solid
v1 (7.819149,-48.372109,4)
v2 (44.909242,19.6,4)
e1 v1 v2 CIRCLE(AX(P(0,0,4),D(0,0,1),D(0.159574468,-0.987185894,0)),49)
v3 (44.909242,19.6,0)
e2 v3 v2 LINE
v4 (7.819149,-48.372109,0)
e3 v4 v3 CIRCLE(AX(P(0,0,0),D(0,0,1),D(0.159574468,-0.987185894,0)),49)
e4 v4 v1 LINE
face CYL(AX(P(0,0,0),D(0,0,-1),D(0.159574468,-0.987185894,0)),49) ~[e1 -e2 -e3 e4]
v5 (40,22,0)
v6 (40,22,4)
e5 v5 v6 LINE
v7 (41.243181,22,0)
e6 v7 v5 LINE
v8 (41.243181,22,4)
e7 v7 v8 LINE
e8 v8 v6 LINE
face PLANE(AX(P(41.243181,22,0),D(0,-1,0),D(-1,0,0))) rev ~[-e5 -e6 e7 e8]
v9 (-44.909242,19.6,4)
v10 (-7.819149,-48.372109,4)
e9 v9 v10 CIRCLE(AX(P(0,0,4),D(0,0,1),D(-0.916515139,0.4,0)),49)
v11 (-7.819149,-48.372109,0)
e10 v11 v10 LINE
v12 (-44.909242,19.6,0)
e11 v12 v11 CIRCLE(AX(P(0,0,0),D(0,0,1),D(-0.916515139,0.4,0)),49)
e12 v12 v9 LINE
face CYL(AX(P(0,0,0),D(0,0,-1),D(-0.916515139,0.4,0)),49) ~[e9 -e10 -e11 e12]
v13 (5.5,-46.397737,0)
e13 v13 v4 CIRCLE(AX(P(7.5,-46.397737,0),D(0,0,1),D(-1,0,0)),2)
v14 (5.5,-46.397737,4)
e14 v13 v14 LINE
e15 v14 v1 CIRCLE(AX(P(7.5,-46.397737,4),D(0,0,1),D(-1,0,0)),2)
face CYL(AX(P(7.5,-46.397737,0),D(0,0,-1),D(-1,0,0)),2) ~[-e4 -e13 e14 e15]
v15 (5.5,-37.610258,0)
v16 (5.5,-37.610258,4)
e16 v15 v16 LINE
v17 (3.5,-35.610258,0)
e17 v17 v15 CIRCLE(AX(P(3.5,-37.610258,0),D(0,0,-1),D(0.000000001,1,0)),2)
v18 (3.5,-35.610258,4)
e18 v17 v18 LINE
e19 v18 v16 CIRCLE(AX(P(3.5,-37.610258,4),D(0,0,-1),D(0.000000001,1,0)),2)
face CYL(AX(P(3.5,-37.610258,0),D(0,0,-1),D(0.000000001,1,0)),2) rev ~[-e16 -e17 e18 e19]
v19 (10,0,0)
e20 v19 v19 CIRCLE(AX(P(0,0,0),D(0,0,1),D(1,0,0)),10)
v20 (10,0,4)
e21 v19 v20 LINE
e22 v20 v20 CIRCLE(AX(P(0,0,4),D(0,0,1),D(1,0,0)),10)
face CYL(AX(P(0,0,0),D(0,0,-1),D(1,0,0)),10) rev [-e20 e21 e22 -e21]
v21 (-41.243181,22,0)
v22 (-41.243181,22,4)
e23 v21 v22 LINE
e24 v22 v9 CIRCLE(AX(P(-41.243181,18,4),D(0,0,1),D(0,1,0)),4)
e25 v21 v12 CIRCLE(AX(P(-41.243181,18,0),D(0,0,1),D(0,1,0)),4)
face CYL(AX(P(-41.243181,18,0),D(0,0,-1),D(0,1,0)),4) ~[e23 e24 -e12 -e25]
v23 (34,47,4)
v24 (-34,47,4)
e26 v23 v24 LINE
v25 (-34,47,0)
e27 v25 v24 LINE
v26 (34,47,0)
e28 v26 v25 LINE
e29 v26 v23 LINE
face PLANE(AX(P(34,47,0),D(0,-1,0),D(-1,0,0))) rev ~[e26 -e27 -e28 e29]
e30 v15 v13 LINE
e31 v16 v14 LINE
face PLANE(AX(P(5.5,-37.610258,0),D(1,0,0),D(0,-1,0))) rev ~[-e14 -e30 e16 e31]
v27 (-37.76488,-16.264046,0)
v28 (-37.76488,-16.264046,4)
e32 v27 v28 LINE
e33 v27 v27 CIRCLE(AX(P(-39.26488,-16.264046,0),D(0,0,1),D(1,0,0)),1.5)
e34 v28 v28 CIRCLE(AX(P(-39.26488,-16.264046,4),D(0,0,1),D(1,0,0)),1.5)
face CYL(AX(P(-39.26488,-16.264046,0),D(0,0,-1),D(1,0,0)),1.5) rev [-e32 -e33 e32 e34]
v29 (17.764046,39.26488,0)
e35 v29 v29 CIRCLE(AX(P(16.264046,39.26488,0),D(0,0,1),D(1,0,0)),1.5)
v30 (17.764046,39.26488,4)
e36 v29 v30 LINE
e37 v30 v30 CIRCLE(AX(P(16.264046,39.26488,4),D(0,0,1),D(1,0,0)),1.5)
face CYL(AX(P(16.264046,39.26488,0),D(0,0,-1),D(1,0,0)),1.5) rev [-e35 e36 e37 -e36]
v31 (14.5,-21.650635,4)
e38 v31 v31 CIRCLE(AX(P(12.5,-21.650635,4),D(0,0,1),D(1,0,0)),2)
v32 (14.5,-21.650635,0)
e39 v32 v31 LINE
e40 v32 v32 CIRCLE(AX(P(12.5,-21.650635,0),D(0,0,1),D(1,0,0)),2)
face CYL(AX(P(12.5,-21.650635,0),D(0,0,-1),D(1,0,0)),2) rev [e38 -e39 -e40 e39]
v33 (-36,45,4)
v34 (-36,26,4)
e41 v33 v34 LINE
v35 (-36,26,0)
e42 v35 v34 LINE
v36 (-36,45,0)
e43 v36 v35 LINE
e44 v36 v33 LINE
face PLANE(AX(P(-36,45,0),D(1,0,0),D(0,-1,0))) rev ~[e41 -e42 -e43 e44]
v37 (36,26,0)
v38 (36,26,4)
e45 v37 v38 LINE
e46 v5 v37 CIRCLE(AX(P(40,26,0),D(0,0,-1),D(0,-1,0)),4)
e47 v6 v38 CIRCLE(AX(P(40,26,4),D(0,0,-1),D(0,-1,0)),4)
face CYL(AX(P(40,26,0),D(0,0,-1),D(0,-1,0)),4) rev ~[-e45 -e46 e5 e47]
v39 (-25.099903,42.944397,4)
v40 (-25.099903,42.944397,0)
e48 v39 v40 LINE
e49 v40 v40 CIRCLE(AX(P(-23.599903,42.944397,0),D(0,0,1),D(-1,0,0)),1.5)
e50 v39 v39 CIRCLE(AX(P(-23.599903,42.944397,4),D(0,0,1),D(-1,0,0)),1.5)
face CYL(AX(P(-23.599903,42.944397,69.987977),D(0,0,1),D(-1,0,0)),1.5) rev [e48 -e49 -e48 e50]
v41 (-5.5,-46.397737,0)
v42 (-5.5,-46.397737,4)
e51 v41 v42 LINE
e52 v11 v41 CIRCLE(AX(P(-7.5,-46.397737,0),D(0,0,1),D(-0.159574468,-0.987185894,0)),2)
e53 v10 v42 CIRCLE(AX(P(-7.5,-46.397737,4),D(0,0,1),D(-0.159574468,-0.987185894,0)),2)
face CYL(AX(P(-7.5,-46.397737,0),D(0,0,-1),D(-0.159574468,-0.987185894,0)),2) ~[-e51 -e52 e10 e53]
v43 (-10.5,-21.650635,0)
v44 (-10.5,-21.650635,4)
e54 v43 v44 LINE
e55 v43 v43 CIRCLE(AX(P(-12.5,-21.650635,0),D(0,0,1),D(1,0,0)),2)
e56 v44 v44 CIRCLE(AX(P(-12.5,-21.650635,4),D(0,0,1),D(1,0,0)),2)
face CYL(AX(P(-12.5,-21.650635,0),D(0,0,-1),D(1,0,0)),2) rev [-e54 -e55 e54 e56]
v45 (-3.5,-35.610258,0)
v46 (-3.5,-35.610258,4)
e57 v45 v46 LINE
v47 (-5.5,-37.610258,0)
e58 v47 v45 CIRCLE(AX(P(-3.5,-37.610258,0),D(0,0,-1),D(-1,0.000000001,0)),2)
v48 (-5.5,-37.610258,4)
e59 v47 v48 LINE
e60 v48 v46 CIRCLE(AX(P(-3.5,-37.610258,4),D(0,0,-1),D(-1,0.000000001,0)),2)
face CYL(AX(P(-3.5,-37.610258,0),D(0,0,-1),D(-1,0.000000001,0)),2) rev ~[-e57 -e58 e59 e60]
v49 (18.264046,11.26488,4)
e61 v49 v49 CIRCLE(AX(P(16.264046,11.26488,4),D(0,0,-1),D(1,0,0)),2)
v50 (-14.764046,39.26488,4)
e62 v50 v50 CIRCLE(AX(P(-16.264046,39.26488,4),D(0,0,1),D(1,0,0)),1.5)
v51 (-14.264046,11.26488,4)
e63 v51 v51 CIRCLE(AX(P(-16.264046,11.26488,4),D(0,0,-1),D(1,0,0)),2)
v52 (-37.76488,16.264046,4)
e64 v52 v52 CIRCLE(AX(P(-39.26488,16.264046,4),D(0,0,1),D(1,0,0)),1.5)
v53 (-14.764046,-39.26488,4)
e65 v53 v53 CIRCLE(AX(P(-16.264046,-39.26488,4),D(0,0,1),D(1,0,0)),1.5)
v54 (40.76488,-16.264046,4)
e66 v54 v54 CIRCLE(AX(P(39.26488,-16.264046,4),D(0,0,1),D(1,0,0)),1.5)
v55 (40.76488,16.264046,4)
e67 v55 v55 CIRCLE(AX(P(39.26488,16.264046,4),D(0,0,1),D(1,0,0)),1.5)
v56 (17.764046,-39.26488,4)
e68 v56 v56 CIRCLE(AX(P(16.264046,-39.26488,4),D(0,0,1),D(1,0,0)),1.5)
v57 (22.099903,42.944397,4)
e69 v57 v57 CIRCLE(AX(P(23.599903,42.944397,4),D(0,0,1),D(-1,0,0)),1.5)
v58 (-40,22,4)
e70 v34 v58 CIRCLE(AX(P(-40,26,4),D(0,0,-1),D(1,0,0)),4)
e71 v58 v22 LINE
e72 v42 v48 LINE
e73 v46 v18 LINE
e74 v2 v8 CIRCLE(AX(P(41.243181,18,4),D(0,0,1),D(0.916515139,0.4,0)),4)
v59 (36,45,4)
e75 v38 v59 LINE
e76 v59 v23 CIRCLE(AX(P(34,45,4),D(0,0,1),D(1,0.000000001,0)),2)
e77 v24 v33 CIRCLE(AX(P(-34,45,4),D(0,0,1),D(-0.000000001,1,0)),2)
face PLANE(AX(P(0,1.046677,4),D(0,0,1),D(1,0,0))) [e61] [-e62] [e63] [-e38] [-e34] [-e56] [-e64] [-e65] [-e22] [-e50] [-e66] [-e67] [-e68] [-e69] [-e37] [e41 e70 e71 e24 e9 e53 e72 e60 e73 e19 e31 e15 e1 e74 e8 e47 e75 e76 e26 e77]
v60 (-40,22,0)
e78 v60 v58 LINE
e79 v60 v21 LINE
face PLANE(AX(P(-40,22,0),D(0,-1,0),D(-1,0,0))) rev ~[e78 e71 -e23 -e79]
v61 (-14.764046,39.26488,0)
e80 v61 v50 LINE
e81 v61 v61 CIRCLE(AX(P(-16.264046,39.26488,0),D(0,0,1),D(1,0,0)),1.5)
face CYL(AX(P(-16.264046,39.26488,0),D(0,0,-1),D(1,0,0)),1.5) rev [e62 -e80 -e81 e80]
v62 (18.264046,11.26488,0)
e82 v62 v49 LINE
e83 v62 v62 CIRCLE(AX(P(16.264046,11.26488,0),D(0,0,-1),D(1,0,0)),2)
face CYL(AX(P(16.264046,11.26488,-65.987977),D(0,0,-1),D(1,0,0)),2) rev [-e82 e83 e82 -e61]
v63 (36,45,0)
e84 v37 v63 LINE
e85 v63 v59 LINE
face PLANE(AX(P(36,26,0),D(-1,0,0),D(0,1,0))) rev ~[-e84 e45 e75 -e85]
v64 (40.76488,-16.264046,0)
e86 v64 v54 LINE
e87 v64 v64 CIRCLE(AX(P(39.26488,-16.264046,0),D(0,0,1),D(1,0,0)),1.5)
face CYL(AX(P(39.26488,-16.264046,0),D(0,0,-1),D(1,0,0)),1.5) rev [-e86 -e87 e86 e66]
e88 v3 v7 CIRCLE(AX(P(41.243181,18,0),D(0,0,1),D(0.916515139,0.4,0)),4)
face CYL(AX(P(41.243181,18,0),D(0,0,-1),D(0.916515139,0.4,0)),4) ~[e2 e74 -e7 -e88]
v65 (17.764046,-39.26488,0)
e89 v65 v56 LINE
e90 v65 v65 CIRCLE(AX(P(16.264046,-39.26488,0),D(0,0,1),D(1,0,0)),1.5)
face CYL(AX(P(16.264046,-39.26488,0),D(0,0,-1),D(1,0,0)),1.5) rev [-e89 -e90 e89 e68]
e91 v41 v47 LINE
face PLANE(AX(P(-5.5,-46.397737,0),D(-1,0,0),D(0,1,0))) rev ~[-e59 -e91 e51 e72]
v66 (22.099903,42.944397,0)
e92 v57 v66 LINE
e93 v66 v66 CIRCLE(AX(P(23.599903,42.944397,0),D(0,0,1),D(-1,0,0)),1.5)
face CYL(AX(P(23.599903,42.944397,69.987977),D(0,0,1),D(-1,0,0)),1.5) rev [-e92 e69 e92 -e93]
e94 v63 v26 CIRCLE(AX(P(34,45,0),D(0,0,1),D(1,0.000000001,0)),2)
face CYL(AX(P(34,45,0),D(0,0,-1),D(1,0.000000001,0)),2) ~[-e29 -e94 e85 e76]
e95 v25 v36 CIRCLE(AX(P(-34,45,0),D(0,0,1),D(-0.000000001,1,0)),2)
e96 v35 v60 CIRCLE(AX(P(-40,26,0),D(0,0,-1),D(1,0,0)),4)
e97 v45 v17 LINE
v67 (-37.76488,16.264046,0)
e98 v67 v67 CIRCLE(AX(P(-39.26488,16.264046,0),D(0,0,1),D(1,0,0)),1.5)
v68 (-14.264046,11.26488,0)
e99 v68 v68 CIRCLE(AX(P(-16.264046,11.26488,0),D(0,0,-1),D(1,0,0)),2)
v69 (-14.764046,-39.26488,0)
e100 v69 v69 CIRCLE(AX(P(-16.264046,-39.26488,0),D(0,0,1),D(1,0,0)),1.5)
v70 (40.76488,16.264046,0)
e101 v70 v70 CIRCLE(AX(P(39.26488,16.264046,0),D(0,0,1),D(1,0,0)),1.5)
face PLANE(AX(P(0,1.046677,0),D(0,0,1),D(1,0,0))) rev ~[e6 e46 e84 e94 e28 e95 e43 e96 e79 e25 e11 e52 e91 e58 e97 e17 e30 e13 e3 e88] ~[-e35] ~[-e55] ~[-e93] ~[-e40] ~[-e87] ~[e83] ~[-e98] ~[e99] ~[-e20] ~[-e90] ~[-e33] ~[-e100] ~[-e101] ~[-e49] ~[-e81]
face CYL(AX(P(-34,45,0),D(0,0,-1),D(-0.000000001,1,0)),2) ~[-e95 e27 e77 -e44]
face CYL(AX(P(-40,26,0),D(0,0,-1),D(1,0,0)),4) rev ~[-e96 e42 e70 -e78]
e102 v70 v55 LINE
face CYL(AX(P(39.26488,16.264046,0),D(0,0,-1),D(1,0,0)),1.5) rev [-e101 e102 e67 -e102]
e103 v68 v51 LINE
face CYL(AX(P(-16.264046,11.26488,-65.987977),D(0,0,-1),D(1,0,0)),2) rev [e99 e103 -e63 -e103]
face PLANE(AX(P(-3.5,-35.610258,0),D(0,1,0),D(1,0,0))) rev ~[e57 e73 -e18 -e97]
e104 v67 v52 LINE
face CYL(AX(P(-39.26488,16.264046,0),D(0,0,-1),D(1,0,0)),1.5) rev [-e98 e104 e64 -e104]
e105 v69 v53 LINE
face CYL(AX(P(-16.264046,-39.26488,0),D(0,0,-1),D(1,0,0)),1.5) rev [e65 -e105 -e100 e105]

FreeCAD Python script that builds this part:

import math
import FreeCAD as App
import Part
import Sketcher

V = App.Vector

doc = App.newDocument("Part")
params = doc.addObject("Spreadsheet::Sheet", "Params")
for row, (alias, value) in enumerate([
    ("sketch1_diameter", "3 mm"),
    ("sketch1_diameter2", "4 mm"),
    ("sketch1_diameter3", "20 mm"),
    ("sketch1_radius", "49 mm"),
    ("sketch1_radius2", "4 mm"),
    ("pad1_length", "4 mm"),
    ("sketch2_diameter", "4 mm"),
    ("sketch3_diameter", "3 mm"),
    ("sketch4_diameter", "3 mm"),
], start=1):
    params.set(f"A{row}", alias)
    params.set(f"B{row}", "=" + value)
    params.setAlias(f"B{row}", alias)

body = doc.addObject("PartDesign::Body", "Body")

# Sketch on XY plane
sketch1 = body.newObject("Sketcher::SketchObject", "Sketch")
sketch1.AttachmentSupport = (doc.getObject("XY_Plane"), [""])
sketch1.MapMode = "FlatFace"
sketch1.addGeometry(Part.LineSegment(V(-5.5, -46.4, 0), V(-5.5, -37.6, 0)), False)
sketch1.addGeometry(Part.ArcOfCircle(Part.Circle(V(-3.5, -37.6, 0), V(0, 0, 1), 2), math.radians(90), math.radians(180)), False)
sketch1.addGeometry(Part.LineSegment(V(-3.5, -35.6, 0), V(3.5, -35.6, 0)), False)
sketch1.addGeometry(Part.ArcOfCircle(Part.Circle(V(3.5, -37.6, 0), V(0, 0, 1), 2), math.radians(0), math.radians(90)), False)
sketch1.addGeometry(Part.LineSegment(V(5.5, -37.6, 0), V(5.5, -46.4, 0)), False)
sketch1.addGeometry(Part.ArcOfCircle(Part.Circle(V(7.5, -46.4, 0), V(0, 0, 1), 2), math.radians(-180), math.radians(-81)), False)
sketch1.addGeometry(Part.ArcOfCircle(Part.Circle(V(0, 0, 0), V(0, 0, 1), 49), math.radians(-81), math.radians(24)), False)
sketch1.addGeometry(Part.ArcOfCircle(Part.Circle(V(41.2, 18, 0), V(0, 0, 1), 4), math.radians(24), math.radians(90)), False)
sketch1.addGeometry(Part.LineSegment(V(41.2, 22, 0), V(40, 22, 0)), False)
sketch1.addGeometry(Part.ArcOfCircle(Part.Circle(V(40, 26, 0), V(0, 0, 1), 4), math.radians(180), math.radians(270)), False)
sketch1.addGeometry(Part.LineSegment(V(36, 26, 0), V(36, 45, 0)), False)
sketch1.addGeometry(Part.ArcOfCircle(Part.Circle(V(34, 45, 0), V(0, 0, 1), 2), math.radians(0), math.radians(90)), False)
sketch1.addGeometry(Part.LineSegment(V(34, 47, 0), V(-34, 47, 0)), False)
sketch1.addGeometry(Part.ArcOfCircle(Part.Circle(V(-34, 45, 0), V(0, 0, 1), 2), math.radians(90), math.radians(180)), False)
sketch1.addGeometry(Part.LineSegment(V(-36, 45, 0), V(-36, 26, 0)), False)
sketch1.addGeometry(Part.ArcOfCircle(Part.Circle(V(-40, 26, 0), V(0, 0, 1), 4), math.radians(-90), math.radians(0)), False)
sketch1.addGeometry(Part.LineSegment(V(-40, 22, 0), V(-41.2, 22, 0)), False)
sketch1.addGeometry(Part.ArcOfCircle(Part.Circle(V(-41.2, 18, 0), V(0, 0, 1), 4), math.radians(90), math.radians(156)), False)
sketch1.addGeometry(Part.ArcOfCircle(Part.Circle(V(0, 0, 0), V(0, 0, 1), 49), math.radians(156), math.radians(261)), False)
sketch1.addGeometry(Part.ArcOfCircle(Part.Circle(V(-7.5, -46.4, 0), V(0, 0, 1), 2), math.radians(-99), math.radians(0)), False)
sketch1.addGeometry(Part.Circle(V(-16.3, -39.3, 0), V(0, 0, 1), 1.5), False)
sketch1.addGeometry(Part.Circle(V(-12.5, -21.7, 0), V(0, 0, 1), 2), False)
sketch1.addGeometry(Part.Circle(V(-39.3, -16.3, 0), V(0, 0, 1), 1.5), False)
sketch1.addGeometry(Part.Circle(V(16.3, -39.3, 0), V(0, 0, 1), 1.5), False)
sketch1.addGeometry(Part.Circle(V(12.5, -21.7, 0), V(0, 0, 1), 2), False)
sketch1.addGeometry(Part.Circle(V(39.3, -16.3, 0), V(0, 0, 1), 1.5), False)
sketch1.addGeometry(Part.Circle(V(-39.3, 16.3, 0), V(0, 0, 1), 1.5), False)
sketch1.addGeometry(Part.Circle(V(-16.3, 39.3, 0), V(0, 0, 1), 1.5), False)
sketch1.addGeometry(Part.Circle(V(0, 0, 0), V(0, 0, 1), 10), False)
sketch1.addGeometry(Part.Circle(V(39.3, 16.3, 0), V(0, 0, 1), 1.5), False)
sketch1.addGeometry(Part.Circle(V(16.3, 39.3, 0), V(0, 0, 1), 1.5), False)
sketch1.addConstraint(Sketcher.Constraint("Tangent", 0, 2, 1, 2))
sketch1.addConstraint(Sketcher.Constraint("Tangent", 1, 1, 2, 1))
sketch1.addConstraint(Sketcher.Constraint("Tangent", 2, 2, 3, 2))
sketch1.addConstraint(Sketcher.Constraint("Tangent", 3, 1, 4, 1))
sketch1.addConstraint(Sketcher.Constraint("Tangent", 4, 2, 5, 1))
sketch1.addConstraint(Sketcher.Constraint("Tangent", 5, 2, 6, 1))
sketch1.addConstraint(Sketcher.Constraint("Tangent", 6, 2, 7, 1))
sketch1.addConstraint(Sketcher.Constraint("Tangent", 7, 2, 8, 1))
sketch1.addConstraint(Sketcher.Constraint("Tangent", 8, 2, 9, 2))
sketch1.addConstraint(Sketcher.Constraint("Tangent", 9, 1, 10, 1))
sketch1.addConstraint(Sketcher.Constraint("Tangent", 10, 2, 11, 1))
sketch1.addConstraint(Sketcher.Constraint("Tangent", 11, 2, 12, 1))
sketch1.addConstraint(Sketcher.Constraint("Tangent", 12, 2, 13, 1))
sketch1.addConstraint(Sketcher.Constraint("Tangent", 13, 2, 14, 1))
sketch1.addConstraint(Sketcher.Constraint("Tangent", 14, 2, 15, 2))
sketch1.addConstraint(Sketcher.Constraint("Tangent", 15, 1, 16, 1))
sketch1.addConstraint(Sketcher.Constraint("Tangent", 16, 2, 17, 1))
sketch1.addConstraint(Sketcher.Constraint("Tangent", 17, 2, 18, 1))
sketch1.addConstraint(Sketcher.Constraint("Tangent", 18, 2, 19, 1))
sketch1.addConstraint(Sketcher.Constraint("Tangent", 19, 2, 0, 1))
sketch1.addConstraint(Sketcher.Constraint("Vertical", 0))
sketch1.addConstraint(Sketcher.Constraint("Horizontal", 2))
sketch1.addConstraint(Sketcher.Constraint("Vertical", 4))
sketch1.addConstraint(Sketcher.Constraint("Horizontal", 8))
sketch1.addConstraint(Sketcher.Constraint("Vertical", 10))
sketch1.addConstraint(Sketcher.Constraint("Horizontal", 12))
sketch1.addConstraint(Sketcher.Constraint("Vertical", 14))
sketch1.addConstraint(Sketcher.Constraint("Horizontal", 16))
sketch1.addConstraint(Sketcher.Constraint("Coincident", 6, 3, -1, 1))
sketch1.addConstraint(Sketcher.Constraint("Coincident", 18, 3, -1, 1))
sketch1.addConstraint(Sketcher.Constraint("Coincident", 28, 3, -1, 1))
sketch1.addConstraint(Sketcher.Constraint("Equal", 1, 3))
sketch1.addConstraint(Sketcher.Constraint("Equal", 3, 5))
sketch1.addConstraint(Sketcher.Constraint("Equal", 7, 9))
sketch1.addConstraint(Sketcher.Constraint("Equal", 5, 11))
sketch1.addConstraint(Sketcher.Constraint("Equal", 11, 13))
sketch1.addConstraint(Sketcher.Constraint("Equal", 9, 15))
sketch1.addConstraint(Sketcher.Constraint("Equal", 15, 17))
sketch1.addConstraint(Sketcher.Constraint("Equal", 6, 18))
sketch1.addConstraint(Sketcher.Constraint("Equal", 13, 19))
sketch1.addConstraint(Sketcher.Constraint("Equal", 19, 21))
sketch1.addConstraint(Sketcher.Constraint("Equal", 20, 22))
sketch1.addConstraint(Sketcher.Constraint("Equal", 22, 23))
sketch1.addConstraint(Sketcher.Constraint("Equal", 21, 24))
sketch1.addConstraint(Sketcher.Constraint("Equal", 23, 25))
sketch1.addConstraint(Sketcher.Constraint("Equal", 25, 26))
sketch1.addConstraint(Sketcher.Constraint("Equal", 26, 27))
sketch1.addConstraint(Sketcher.Constraint("Equal", 27, 29))
sketch1.addConstraint(Sketcher.Constraint("Equal", 29, 30))
sketch1.addConstraint(Sketcher.Constraint("Symmetric", 25, 3, 26, 3, -1, 1))
sketch1.addConstraint(Sketcher.Constraint("Symmetric", 23, 3, 27, 3, -1, 1))
sketch1.addConstraint(Sketcher.Constraint("Symmetric", 22, 3, 29, 3, -1, 1))
sketch1.addConstraint(Sketcher.Constraint("Symmetric", 20, 3, 30, 3, -1, 1))
sketch1.addConstraint(Sketcher.Constraint("Symmetric", 9, 3, 15, 3, -2))
sketch1.addConstraint(Sketcher.Constraint("Symmetric", 20, 3, 23, 3, -2))
sketch1.addConstraint(Sketcher.Constraint("Symmetric", 21, 3, 24, 3, -2))
sketch1.addConstraint(Sketcher.Constraint("Symmetric", 22, 3, 25, 3, -2))
sketch1.addConstraint(Sketcher.Constraint("Horizontal", 5, 3, 19, 3))
sketch1.addConstraint(Sketcher.Constraint("Diameter", 20, 3.0))
sketch1.addConstraint(Sketcher.Constraint("Diameter", 21, 4.0))
sketch1.addConstraint(Sketcher.Constraint("Diameter", 28, 20.0))
sketch1.addConstraint(Sketcher.Constraint("Radius", 6, 49.0))
sketch1.addConstraint(Sketcher.Constraint("Radius", 7, 4.0))
sketch1.addConstraint(Sketcher.Constraint("DistanceX", 2, 1, 2, 2, 7.0))
sketch1.addConstraint(Sketcher.Constraint("DistanceX", 12, 2, 12, 1, 68.0))
sketch1.addConstraint(Sketcher.Constraint("DistanceY", 10, 1, 10, 2, 19.0))
sketch1.addConstraint(Sketcher.Constraint("DistanceY", -1, 1, 7, 3, 18.0))
sketch1.addConstraint(Sketcher.Constraint("DistanceX", 21, 3, 1, 3, 9.0))
sketch1.addConstraint(Sketcher.Constraint("DistanceY", 0, 1, 0, 2, 8.787479))
sketch1.addConstraint(Sketcher.Constraint("DistanceX", 17, 3, 22, 3, 1.978301))
sketch1.addConstraint(Sketcher.Constraint("DistanceY", 20, 3, -1, 1, 39.26488))
sketch1.addConstraint(Sketcher.Constraint("DistanceY", 21, 3, 22, 3, 5.386589))
sketch1.addConstraint(Sketcher.Constraint("DistanceX", 20, 3, 23, 3, 32.528092))
sketch1.addConstraint(Sketcher.Constraint("DistanceY", 22, 3, 26, 3, 32.528092))
sketch1.setExpression("Constraints[58]", "Params.sketch1_diameter")
sketch1.setExpression("Constraints[59]", "Params.sketch1_diameter2")
sketch1.setExpression("Constraints[60]", "Params.sketch1_diameter3")
sketch1.setExpression("Constraints[61]", "Params.sketch1_radius")
sketch1.setExpression("Constraints[62]", "Params.sketch1_radius2")
pad1 = body.newObject("PartDesign::Pad", "Pad")
pad1.Profile = sketch1
pad1.setExpression("Length", "Params.pad1_length")

# Sketch on XY plane
sketch2 = body.newObject("Sketcher::SketchObject", "Sketch001")
sketch2.AttachmentSupport = (doc.getObject("XY_Plane"), [""])
sketch2.MapMode = "FlatFace"
sketch2.AttachmentOffset = App.Placement(V(0, 0, 4), App.Rotation())
sketch2.addGeometry(Part.Circle(V(-16.3, 11.3, 0), V(0, 0, 1), 2), False)
sketch2.addGeometry(Part.Circle(V(16.3, 11.3, 0), V(0, 0, 1), 2), False)
sketch2.addConstraint(Sketcher.Constraint("Equal", 0, 1))
sketch2.addConstraint(Sketcher.Constraint("Symmetric", 0, 3, 1, 3, -2))
sketch2.addConstraint(Sketcher.Constraint("Diameter", 0, 4.0))
sketch2.addConstraint(Sketcher.Constraint("DistanceY", -1, 1, 0, 3, 11.26488))
sketch2.addConstraint(Sketcher.Constraint("DistanceX", 0, 3, 1, 3, 32.528092))
sketch2.setExpression("Constraints[2]", "Params.sketch2_diameter")
pocket1 = body.newObject("PartDesign::Pocket", "Pocket")
pocket1.Profile = sketch2
pocket1.Type = "ThroughAll"
pocket1.Midplane = True

# Sketch on XY plane
sketch3 = body.newObject("Sketcher::SketchObject", "Sketch002")
sketch3.AttachmentSupport = (doc.getObject("XY_Plane"), [""])
sketch3.MapMode = "FlatFace"
sketch3.addGeometry(Part.Circle(V(23.6, 42.9, 0), V(0, 0, 1), 1.5), False)
sketch3.addConstraint(Sketcher.Constraint("Diameter", 0, 3.0))
sketch3.addConstraint(Sketcher.Constraint("DistanceX", -1, 1, 0, 3, 23.599903))
sketch3.addConstraint(Sketcher.Constraint("DistanceY", -1, 1, 0, 3, 42.944397))
sketch3.setExpression("Constraints[0]", "Params.sketch3_diameter")
pocket2 = body.newObject("PartDesign::Pocket", "Pocket001")
pocket2.Profile = sketch3
pocket2.Type = "ThroughAll"
pocket2.Midplane = True

# Sketch on XY plane
sketch4 = body.newObject("Sketcher::SketchObject", "Sketch003")
sketch4.AttachmentSupport = (doc.getObject("XY_Plane"), [""])
sketch4.MapMode = "FlatFace"
sketch4.addGeometry(Part.Circle(V(-23.6, 42.9, 0), V(0, 0, 1), 1.5), False)
sketch4.addConstraint(Sketcher.Constraint("Diameter", 0, 3.0))
sketch4.addConstraint(Sketcher.Constraint("DistanceX", 0, 3, -1, 1, 23.599903))
sketch4.addConstraint(Sketcher.Constraint("DistanceY", -1, 1, 0, 3, 42.944397))
sketch4.setExpression("Constraints[0]", "Params.sketch4_diameter")
pocket3 = body.newObject("PartDesign::Pocket", "Pocket002")
pocket3.Profile = sketch4
pocket3.Type = "ThroughAll"
pocket3.Midplane = True

doc.recompute()
